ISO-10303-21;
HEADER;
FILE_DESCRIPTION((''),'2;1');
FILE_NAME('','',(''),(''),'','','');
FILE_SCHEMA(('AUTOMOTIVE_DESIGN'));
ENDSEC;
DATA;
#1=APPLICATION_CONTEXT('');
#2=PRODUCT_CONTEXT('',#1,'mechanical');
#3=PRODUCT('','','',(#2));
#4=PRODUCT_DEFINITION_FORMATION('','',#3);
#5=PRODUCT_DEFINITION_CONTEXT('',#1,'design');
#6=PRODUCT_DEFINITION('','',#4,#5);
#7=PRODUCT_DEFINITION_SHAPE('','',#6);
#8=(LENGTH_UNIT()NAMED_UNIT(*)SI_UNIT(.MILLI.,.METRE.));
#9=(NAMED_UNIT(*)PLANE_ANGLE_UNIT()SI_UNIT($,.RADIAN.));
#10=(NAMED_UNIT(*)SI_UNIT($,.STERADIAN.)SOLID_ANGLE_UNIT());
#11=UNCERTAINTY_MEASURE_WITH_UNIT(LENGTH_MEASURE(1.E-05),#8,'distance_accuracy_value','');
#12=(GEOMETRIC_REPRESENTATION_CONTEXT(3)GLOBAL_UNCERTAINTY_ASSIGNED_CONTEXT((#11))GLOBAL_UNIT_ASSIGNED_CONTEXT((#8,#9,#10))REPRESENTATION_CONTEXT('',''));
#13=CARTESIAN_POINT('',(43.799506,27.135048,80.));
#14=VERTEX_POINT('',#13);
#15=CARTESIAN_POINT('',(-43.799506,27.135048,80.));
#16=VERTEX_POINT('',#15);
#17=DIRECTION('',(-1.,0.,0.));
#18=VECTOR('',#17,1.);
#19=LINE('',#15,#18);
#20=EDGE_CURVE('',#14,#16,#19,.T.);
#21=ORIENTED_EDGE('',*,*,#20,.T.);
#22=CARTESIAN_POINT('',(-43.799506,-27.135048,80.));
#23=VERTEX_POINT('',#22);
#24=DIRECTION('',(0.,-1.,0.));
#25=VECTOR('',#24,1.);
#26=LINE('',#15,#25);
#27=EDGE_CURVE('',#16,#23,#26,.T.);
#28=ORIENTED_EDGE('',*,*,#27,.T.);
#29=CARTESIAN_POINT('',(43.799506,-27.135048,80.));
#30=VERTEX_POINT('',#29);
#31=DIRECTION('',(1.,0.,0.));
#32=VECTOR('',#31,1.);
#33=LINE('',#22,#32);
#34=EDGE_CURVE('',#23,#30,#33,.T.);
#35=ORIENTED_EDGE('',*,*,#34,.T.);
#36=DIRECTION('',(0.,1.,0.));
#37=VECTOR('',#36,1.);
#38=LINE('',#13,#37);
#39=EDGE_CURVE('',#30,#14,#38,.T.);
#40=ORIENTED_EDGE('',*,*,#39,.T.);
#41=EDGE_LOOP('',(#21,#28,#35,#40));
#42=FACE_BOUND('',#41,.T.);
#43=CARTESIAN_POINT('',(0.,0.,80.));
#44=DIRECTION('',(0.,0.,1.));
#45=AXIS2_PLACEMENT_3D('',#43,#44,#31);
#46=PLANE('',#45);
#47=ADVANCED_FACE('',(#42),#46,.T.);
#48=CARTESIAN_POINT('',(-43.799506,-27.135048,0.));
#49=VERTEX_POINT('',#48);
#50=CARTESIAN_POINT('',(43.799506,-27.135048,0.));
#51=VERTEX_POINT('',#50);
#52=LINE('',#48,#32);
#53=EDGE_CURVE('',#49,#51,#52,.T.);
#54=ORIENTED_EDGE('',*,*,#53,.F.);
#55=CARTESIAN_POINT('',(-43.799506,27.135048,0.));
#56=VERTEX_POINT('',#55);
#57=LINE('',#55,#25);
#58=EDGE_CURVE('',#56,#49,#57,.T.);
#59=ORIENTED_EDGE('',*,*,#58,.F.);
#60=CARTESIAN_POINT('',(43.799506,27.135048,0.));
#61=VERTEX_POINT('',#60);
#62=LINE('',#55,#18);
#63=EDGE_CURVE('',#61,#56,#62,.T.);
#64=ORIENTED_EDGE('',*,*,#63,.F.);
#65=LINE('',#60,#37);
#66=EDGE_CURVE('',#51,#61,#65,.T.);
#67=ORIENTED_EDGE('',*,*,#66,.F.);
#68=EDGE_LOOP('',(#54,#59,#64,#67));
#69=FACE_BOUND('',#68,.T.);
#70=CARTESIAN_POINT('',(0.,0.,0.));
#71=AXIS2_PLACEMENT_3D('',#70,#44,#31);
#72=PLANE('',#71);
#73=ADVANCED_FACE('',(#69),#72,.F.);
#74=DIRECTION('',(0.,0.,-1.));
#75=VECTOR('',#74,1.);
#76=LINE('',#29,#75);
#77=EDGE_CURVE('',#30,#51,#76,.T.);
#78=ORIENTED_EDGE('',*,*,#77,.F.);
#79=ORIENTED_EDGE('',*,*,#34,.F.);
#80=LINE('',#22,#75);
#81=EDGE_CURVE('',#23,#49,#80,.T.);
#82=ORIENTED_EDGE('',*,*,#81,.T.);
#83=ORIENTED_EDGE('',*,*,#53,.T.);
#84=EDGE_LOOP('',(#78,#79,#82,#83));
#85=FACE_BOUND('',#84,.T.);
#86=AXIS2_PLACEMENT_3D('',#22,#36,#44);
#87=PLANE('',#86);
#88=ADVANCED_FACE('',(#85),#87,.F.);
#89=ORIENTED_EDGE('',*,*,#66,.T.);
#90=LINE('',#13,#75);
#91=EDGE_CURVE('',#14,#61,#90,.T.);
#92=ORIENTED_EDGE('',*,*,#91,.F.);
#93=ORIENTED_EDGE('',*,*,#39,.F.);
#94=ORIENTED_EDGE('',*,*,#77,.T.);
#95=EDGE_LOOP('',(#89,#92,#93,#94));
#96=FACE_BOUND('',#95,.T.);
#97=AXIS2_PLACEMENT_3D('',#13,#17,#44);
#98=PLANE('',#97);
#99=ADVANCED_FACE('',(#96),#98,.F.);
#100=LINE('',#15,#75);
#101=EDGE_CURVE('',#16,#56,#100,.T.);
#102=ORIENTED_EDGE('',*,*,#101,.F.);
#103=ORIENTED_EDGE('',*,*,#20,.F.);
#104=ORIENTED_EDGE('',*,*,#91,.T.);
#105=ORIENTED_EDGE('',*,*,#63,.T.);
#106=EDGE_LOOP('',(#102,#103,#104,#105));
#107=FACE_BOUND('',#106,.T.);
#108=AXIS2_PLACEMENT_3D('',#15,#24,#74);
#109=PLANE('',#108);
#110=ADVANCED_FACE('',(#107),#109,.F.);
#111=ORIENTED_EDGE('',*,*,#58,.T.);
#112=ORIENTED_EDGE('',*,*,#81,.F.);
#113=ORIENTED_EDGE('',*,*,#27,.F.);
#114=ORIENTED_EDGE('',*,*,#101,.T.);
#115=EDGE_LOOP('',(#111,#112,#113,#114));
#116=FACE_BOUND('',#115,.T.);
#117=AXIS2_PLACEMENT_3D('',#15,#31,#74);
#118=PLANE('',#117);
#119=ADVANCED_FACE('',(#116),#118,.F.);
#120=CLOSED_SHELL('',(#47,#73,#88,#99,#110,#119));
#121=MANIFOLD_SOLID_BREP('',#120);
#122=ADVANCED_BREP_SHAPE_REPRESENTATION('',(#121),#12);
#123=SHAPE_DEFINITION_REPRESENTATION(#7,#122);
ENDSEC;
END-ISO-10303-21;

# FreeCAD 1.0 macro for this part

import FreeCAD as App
import Part
import Sketcher
from FreeCAD import Vector


def add_polygon(sketch, points):
    """Adds a closed chain of lines whose ends are joined by coincident constraints."""
    first, n = sketch.GeometryCount, len(points)
    for a, b in zip(points, points[1:] + points[:1]):
        sketch.addGeometry(Part.LineSegment(App.Vector(*a, 0), App.Vector(*b, 0)), False)
    for i in range(n):
        sketch.addConstraint(Sketcher.Constraint("Coincident", first + i, 2, first + (i + 1) % n, 1))

doc = App.newDocument("Part")
params = doc.addObject("Spreadsheet::Sheet", "Params")
for row, (alias, value) in enumerate([
    ("pad1_length", "80 mm"),
], start=1):
    params.set(f"A{row}", alias)
    params.set(f"B{row}", "=" + value)
    params.setAlias(f"B{row}", alias)

body = doc.addObject("PartDesign::Body", "Body")

# Sketch on XY plane
sketch1 = body.newObject("Sketcher::SketchObject", "Sketch")
sketch1.AttachmentSupport = (doc.getObject("XY_Plane"), [""])
sketch1.MapMode = "FlatFace"
add_polygon(sketch1, [(-44, 27), (-44, -27), (44, -27), (44, 27)])  # lines 0-3
sketch1.addConstraint([
    Sketcher.Constraint("Vertical", 0),
    Sketcher.Constraint("Horizontal", 1),
    Sketcher.Constraint("Vertical", 2),
    Sketcher.Constraint("Horizontal", 3),
    Sketcher.Constraint("Symmetric", 0, 2, 2, 2, -1, 1),
    Sketcher.Constraint("DistanceX", 1, 1, 1, 2, 87.599012),
    Sketcher.Constraint("DistanceY", 0, 2, 0, 1, 54.270095),
])
pad1 = body.newObject("PartDesign::Pad", "Pad")
pad1.Profile = sketch1
pad1.setExpression("Length", "Params.pad1_length")

doc.recompute()
